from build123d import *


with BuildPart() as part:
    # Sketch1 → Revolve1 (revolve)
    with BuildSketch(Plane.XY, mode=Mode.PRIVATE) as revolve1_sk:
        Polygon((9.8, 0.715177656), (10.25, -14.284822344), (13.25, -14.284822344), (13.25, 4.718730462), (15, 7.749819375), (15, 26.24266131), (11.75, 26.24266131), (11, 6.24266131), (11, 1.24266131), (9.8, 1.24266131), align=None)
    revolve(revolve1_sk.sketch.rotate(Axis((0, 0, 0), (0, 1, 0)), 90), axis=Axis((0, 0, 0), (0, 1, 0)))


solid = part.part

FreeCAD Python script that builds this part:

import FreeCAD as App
import Part
import Sketcher
from FreeCAD import Vector
Q = App.Units.Quantity

doc = App.newDocument("Part")
body = doc.addObject("PartDesign::Body", "Body")

sketch1 = body.newObject("Sketcher::SketchObject", "Sketch")
sketch1.AttachmentSupport = (doc.getObject("XY_Plane"), [""])
sketch1.MapMode = "FlatFace"
sketch1.addGeometry([
    Part.LineSegment(Vector(9.8, 0.7, 0), Vector(10.2, -14.3, 0)),
    Part.LineSegment(Vector(10.2, -14.3, 0), Vector(13.2, -14.3, 0)),
    Part.LineSegment(Vector(13.2, -14.3, 0), Vector(13.2, 4.7, 0)),
    Part.LineSegment(Vector(13.2, 4.7, 0), Vector(15, 7.7, 0)),
    Part.LineSegment(Vector(15, 7.7, 0), Vector(15, 26.2, 0)),
    Part.LineSegment(Vector(15, 26.2, 0), Vector(11.8, 26.2, 0)),
    Part.LineSegment(Vector(11.8, 26.2, 0), Vector(11, 6.2, 0)),
    Part.LineSegment(Vector(11, 6.2, 0), Vector(11, 1.2, 0)),
    Part.LineSegment(Vector(11, 1.2, 0), Vector(9.8, 1.2, 0)),
    Part.LineSegment(Vector(9.8, 1.2, 0), Vector(9.8, 0.7, 0)),
], False)
sketch1.addConstraint([
    Sketcher.Constraint("Coincident", 0, 2, 1, 1),
    Sketcher.Constraint("Coincident", 1, 2, 2, 1),
    Sketcher.Constraint("Coincident", 2, 2, 3, 1),
    Sketcher.Constraint("Coincident", 3, 2, 4, 1),
    Sketcher.Constraint("Coincident", 4, 2, 5, 1),
    Sketcher.Constraint("Coincident", 5, 2, 6, 1),
    Sketcher.Constraint("Coincident", 6, 2, 7, 1),
    Sketcher.Constraint("Coincident", 7, 2, 8, 1),
    Sketcher.Constraint("Coincident", 8, 2, 9, 1),
    Sketcher.Constraint("Coincident", 9, 2, 0, 1),
    Sketcher.Constraint("Horizontal", 1),
    Sketcher.Constraint("Vertical", 2),
    Sketcher.Constraint("Vertical", 4),
    Sketcher.Constraint("Horizontal", 5),
    Sketcher.Constraint("Vertical", 7),
    Sketcher.Constraint("Horizontal", 8),
    Sketcher.Constraint("Vertical", 9),
    Sketcher.Constraint("DistanceX", 1, 1, 1, 2, Q("3 mm")),
    Sketcher.Constraint("DistanceY", 7, 2, 7, 1, Q("5 mm")),
    Sketcher.Constraint("Angle", 3, Q("60 deg")),
    Sketcher.Constraint("DistanceX", 8, 2, 8, 1, Q("1.2 mm")),
    Sketcher.Constraint("DistanceX", -1, 1, 3, 2, Q("15 mm")),
    Sketcher.Constraint("DistanceX", -1, 1, 6, 2, Q("11 mm")),
    Sketcher.Constraint("DistanceY", 6, 2, 5, 2, Q("20 mm")),
    Sketcher.Constraint("Distance", 3, Q("3.5 mm")),
    Sketcher.Constraint("DistanceX", 5, 2, 5, 1, Q("3.25 mm")),
    Sketcher.Constraint("DistanceY", 4, 1, 4, 2, Q("18.492842 mm")),
    Sketcher.Constraint("Distance", 0, Q("15.006748 mm")),
    Sketcher.Constraint("DistanceY", 2, 1, 2, 2, Q("19.003553 mm")),
    Sketcher.Constraint("DistanceY", -1, 1, 2, 2, Q("4.71873 mm")),
])
revolution = body.newObject("PartDesign::Revolution", "Revolution")
revolution.Profile = sketch1
revolution.ReferenceAxis = (sketch1, ["V_Axis"])
revolution.Angle = 360

doc.recompute()
